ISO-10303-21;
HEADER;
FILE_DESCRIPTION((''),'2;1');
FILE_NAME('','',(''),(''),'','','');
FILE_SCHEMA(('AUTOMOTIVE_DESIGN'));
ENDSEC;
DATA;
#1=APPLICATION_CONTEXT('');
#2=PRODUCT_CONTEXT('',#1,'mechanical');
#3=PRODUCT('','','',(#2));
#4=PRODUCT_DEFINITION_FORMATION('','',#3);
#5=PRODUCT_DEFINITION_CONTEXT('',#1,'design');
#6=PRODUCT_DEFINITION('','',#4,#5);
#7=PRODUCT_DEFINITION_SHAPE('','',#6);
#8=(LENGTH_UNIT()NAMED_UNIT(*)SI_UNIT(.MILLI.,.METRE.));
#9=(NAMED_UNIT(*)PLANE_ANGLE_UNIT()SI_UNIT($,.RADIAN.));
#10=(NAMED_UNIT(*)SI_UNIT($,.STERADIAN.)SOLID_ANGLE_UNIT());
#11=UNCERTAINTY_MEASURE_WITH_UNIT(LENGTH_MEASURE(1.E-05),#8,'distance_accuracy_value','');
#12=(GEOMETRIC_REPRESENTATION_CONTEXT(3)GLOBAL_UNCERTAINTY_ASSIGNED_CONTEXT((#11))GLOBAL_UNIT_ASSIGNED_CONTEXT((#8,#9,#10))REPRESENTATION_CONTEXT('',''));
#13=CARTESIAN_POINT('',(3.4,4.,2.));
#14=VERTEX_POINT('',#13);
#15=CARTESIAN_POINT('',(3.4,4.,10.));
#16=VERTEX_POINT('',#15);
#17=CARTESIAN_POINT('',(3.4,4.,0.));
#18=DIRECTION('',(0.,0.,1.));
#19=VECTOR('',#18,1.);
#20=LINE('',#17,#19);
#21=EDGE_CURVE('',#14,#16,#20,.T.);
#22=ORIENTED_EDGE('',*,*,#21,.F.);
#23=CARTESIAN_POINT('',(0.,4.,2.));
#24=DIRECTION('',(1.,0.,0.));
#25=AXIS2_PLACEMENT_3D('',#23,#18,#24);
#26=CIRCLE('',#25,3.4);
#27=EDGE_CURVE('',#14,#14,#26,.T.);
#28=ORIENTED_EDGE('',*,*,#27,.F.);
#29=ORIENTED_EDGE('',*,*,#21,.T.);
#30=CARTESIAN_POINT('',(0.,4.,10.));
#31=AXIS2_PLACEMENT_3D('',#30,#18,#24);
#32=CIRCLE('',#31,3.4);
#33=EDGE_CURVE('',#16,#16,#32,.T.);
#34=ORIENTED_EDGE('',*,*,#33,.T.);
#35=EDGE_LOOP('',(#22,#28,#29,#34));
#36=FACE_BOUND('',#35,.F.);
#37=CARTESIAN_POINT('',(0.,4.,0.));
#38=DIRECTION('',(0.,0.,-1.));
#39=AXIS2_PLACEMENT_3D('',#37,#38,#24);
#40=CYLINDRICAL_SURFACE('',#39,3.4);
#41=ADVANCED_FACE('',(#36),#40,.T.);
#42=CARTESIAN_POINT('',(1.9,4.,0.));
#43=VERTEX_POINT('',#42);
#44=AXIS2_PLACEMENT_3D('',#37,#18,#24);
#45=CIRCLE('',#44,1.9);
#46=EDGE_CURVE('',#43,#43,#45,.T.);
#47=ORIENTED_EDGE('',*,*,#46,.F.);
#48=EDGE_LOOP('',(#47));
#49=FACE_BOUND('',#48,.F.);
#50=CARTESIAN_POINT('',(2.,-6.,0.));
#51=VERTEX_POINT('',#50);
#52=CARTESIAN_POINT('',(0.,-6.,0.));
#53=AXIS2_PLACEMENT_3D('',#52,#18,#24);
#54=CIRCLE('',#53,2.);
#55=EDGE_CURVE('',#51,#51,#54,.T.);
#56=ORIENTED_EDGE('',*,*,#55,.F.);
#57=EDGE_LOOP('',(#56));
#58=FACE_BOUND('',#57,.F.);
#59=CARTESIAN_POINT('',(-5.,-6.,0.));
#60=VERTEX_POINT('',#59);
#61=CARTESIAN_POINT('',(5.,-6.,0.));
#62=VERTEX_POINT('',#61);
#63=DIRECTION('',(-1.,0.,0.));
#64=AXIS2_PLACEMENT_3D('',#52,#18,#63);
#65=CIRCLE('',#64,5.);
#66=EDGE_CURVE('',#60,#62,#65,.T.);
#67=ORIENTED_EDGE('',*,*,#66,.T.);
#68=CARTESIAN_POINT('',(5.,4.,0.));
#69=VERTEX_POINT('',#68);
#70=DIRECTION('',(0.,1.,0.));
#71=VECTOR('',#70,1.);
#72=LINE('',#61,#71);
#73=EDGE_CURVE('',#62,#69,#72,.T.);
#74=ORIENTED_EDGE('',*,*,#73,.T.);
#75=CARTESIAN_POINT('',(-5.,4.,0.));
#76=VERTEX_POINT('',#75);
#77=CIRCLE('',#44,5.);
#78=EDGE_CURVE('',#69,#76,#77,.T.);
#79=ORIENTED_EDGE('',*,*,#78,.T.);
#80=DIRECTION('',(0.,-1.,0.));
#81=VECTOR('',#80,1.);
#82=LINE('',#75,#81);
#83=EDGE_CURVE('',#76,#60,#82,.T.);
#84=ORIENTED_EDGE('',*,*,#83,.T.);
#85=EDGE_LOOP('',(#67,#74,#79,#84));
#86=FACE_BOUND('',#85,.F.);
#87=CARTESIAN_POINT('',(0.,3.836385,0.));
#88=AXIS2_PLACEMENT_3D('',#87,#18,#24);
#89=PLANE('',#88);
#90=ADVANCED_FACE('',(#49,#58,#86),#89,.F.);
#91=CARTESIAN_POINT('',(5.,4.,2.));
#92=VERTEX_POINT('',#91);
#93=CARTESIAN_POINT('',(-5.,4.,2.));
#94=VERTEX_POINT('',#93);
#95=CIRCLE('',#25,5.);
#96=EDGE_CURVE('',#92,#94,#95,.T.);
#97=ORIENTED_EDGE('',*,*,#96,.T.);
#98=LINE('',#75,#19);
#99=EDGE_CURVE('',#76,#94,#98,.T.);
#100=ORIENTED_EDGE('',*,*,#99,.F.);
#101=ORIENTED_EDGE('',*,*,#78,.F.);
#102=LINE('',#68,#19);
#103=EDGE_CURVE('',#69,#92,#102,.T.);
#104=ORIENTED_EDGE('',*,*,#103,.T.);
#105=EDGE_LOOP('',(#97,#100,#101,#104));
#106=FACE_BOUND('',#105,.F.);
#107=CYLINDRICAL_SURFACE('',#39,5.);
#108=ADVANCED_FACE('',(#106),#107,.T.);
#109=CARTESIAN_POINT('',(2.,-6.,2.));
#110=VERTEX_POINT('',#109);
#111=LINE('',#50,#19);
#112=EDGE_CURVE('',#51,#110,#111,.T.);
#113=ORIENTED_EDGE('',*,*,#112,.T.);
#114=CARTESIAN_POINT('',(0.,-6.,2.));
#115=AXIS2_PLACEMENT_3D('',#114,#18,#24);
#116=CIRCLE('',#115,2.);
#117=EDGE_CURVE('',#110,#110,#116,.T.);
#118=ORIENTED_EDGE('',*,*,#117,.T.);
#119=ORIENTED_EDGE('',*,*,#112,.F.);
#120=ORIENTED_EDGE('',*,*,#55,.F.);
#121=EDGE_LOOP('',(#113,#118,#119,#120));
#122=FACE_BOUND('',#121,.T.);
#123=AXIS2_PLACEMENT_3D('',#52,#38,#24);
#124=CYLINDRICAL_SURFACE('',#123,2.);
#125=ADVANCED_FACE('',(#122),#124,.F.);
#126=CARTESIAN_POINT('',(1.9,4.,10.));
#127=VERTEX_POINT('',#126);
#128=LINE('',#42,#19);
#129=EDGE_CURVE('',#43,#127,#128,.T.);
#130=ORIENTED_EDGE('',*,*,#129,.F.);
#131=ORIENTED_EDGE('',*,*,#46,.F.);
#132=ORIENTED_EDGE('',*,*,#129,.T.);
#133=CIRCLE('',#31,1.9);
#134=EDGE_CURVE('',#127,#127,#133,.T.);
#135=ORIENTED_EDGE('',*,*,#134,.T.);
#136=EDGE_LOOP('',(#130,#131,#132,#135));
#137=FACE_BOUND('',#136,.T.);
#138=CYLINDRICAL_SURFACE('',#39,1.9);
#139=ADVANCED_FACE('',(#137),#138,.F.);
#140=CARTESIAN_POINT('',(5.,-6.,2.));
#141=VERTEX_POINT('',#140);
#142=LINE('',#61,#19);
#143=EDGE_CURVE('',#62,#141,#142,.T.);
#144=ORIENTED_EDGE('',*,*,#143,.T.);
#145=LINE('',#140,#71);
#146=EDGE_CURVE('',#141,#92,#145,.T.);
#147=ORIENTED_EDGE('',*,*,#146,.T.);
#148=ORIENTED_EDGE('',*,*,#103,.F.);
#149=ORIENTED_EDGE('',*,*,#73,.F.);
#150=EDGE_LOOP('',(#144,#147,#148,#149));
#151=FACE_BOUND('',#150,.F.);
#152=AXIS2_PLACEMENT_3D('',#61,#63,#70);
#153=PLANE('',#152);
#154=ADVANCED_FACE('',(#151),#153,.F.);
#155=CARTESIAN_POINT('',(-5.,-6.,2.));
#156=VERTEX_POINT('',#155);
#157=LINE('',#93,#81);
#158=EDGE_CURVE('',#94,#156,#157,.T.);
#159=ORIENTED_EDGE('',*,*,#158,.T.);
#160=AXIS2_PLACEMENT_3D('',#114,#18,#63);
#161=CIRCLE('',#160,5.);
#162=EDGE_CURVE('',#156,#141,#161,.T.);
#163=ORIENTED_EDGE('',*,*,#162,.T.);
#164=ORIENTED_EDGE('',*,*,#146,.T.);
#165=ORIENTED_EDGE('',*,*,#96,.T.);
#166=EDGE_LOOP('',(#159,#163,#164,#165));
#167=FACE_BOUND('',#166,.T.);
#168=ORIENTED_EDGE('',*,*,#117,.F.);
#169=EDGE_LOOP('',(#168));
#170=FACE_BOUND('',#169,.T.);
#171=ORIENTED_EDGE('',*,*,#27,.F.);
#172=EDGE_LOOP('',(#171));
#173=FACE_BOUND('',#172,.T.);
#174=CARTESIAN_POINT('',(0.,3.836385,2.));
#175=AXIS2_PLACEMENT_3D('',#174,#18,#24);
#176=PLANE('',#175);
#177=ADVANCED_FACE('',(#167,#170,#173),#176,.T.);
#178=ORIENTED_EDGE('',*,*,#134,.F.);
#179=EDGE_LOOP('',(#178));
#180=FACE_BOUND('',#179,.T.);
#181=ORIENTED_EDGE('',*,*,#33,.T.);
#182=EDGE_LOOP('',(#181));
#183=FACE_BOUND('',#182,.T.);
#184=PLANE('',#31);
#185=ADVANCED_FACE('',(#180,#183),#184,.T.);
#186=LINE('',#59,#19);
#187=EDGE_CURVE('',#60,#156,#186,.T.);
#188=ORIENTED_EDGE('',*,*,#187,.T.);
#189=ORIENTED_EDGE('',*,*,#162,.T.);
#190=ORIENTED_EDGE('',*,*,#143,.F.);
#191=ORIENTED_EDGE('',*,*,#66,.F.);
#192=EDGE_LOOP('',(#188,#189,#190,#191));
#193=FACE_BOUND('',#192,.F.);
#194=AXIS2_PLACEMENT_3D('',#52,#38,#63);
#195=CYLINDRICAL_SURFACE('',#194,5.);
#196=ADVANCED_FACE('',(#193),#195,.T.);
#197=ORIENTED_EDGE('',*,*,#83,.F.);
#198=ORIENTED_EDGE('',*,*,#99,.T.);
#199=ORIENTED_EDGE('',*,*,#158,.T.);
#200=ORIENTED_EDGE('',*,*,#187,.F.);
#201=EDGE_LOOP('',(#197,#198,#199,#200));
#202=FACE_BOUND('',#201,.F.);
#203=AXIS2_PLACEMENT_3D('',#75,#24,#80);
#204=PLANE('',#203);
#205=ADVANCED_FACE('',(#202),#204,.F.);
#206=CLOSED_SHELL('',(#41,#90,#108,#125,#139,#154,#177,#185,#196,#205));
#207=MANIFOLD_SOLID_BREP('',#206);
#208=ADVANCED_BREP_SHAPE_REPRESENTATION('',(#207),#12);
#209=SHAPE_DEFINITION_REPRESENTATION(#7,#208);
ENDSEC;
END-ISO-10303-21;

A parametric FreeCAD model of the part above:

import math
import FreeCAD as App
import Part
import Sketcher
from FreeCAD import Vector
Q = App.Units.Quantity

doc = App.newDocument("Part")
body = doc.addObject("PartDesign::Body", "Body")

# Sketch on XY plane
sketch1 = doc.addObject("Sketcher::SketchObject", "Sketch")
body.addObject(sketch1)
sketch1.AttachmentSupport = (doc.XY_Plane, [""])
sketch1.MapMode = "FlatFace"
sketch1.addGeometry([
    Part.Circle(Vector(0, 4, 0), Vector(0, 0, 1), 3.4),
    Part.Circle(Vector(0, 4, 0), Vector(0, 0, 1), 1.9),
], False)
sketch1.addConstraint([
    Sketcher.Constraint("Coincident", 1, 3, 0, 3),
    Sketcher.Constraint("PointOnObject", 0, 3, -2),
    Sketcher.Constraint("Diameter", 0, Q("6.8 mm")),
    Sketcher.Constraint("Diameter", 1, Q("3.8 mm")),
    Sketcher.Constraint("DistanceY", -1, 1, 0, 3, Q("4 mm")),
])
pad1 = doc.addObject("PartDesign::Pad", "Pad")
body.addObject(pad1)
pad1.Profile = sketch1
pad1.Length = 10

# Sketch on XY plane
sketch2 = doc.addObject("Sketcher::SketchObject", "Sketch001")
body.addObject(sketch2)
sketch2.AttachmentSupport = (doc.XY_Plane, [""])
sketch2.MapMode = "FlatFace"
sketch2.addGeometry([
    Part.ArcOfCircle(Part.Circle(Vector(0, 4, 0), Vector(0, 0, 1), 5), math.radians(0), math.radians(180)),  # 0
    Part.LineSegment(Vector(-5, 4, 0), Vector(-5, -6, 0)),  # 1
    Part.ArcOfCircle(Part.Circle(Vector(0, -6, 0), Vector(0, 0, 1), 5), math.radians(180), math.radians(360)),  # 2
    Part.LineSegment(Vector(5, -6, 0), Vector(5, 4, 0)),  # 3
    Part.Circle(Vector(0, -6, 0), Vector(0, 0, 1), 2),  # 4
    Part.Circle(Vector(0, 4, 0), Vector(0, 0, 1), 3.4),  # 5
], False)
sketch2.addConstraint([
    Sketcher.Constraint("Tangent", 0, 2, 1, 1),
    Sketcher.Constraint("Tangent", 1, 2, 2, 1),
    Sketcher.Constraint("Tangent", 2, 2, 3, 1),
    Sketcher.Constraint("Tangent", 3, 2, 0, 1),
    Sketcher.Constraint("Vertical", 1),
    Sketcher.Constraint("Vertical", 3),
    Sketcher.Constraint("Coincident", 4, 3, 2, 3),
    Sketcher.Constraint("Coincident", 5, 3, 0, 3),
    Sketcher.Constraint("PointOnObject", 0, 3, -2),
    Sketcher.Constraint("Diameter", 4, Q("4 mm")),
    Sketcher.Constraint("Radius", 0, Q("5 mm")),
    Sketcher.Constraint("Diameter", 5, Q("6.8 mm")),
    Sketcher.Constraint("DistanceY", 1, 2, 1, 1, Q("10 mm")),
    Sketcher.Constraint("DistanceY", -1, 1, 0, 3, Q("4 mm")),
])
pad2 = doc.addObject("PartDesign::Pad", "Pad001")
body.addObject(pad2)
pad2.Profile = sketch2
pad2.Length = 2

doc.recompute()
